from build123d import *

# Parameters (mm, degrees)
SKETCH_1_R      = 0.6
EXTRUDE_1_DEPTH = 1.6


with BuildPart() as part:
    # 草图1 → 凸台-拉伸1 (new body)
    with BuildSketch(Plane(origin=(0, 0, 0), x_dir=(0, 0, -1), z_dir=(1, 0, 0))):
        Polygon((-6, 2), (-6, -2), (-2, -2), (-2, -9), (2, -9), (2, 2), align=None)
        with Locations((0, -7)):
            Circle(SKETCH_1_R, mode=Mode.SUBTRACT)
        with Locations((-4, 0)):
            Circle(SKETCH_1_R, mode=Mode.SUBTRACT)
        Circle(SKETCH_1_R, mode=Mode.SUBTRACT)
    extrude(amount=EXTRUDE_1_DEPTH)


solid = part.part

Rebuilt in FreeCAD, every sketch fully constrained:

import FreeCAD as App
import Part
import Sketcher
from FreeCAD import Vector
Q = App.Units.Quantity


def add_polygon(sketch, points):
    """Adds a closed chain of lines whose ends are joined by coincident constraints."""
    first, n = sketch.GeometryCount, len(points)
    for a, b in zip(points, points[1:] + points[:1]):
        sketch.addGeometry(Part.LineSegment(App.Vector(*a, 0), App.Vector(*b, 0)), False)
    for i in range(n):
        sketch.addConstraint(Sketcher.Constraint("Coincident", first + i, 2, first + (i + 1) % n, 1))

doc = App.newDocument("Part")
body = doc.addObject("PartDesign::Body", "Body")

# Sketch on YZ plane
sketch1 = body.newObject("Sketcher::SketchObject", "Sketch")
sketch1.AttachmentSupport = (doc.getObject("YZ_Plane"), [""])
sketch1.MapMode = "FlatFace"
add_polygon(sketch1, [(2, 6), (-2, 6), (-2, 2), (-9, 2), (-9, -2), (2, -2)])  # lines 0-5
sketch1.addGeometry(Part.Circle(Vector(-7, 0, 0), Vector(0, 0, 1), 0.6), False)  # 6
sketch1.addGeometry(Part.Circle(Vector(0, 4, 0), Vector(0, 0, 1), 0.6), False)  # 7
sketch1.addGeometry(Part.Circle(Vector(0, 0, 0), Vector(0, 0, 1), 0.6), False)  # 8
sketch1.addConstraint([
    Sketcher.Constraint("Horizontal", 0),
    Sketcher.Constraint("Vertical", 1),
    Sketcher.Constraint("Horizontal", 2),
    Sketcher.Constraint("Vertical", 3),
    Sketcher.Constraint("Horizontal", 4),
    Sketcher.Constraint("Vertical", 5),
    Sketcher.Constraint("Coincident", 8, 3, -1, 1),
    Sketcher.Constraint("Equal", 6, 7),
    Sketcher.Constraint("Equal", 7, 8),
    Sketcher.Constraint("Symmetric", 1, 2, 4, 2, -1, 1),
    Sketcher.Constraint("PointOnObject", 6, 3, -1),
    Sketcher.Constraint("PointOnObject", 7, 3, -2),
    Sketcher.Constraint("Equal", 0, 1),
    Sketcher.Constraint("Equal", 1, 3),
    Sketcher.Constraint("Diameter", 6, Q("1.2 mm")),
    Sketcher.Constraint("DistanceX", 0, 2, 0, 1, Q("4 mm")),
    Sketcher.Constraint("DistanceX", 2, 2, 2, 1, Q("7 mm")),
    Sketcher.Constraint("DistanceX", 6, 3, -1, 1, Q("7 mm")),
    Sketcher.Constraint("DistanceY", -1, 1, 7, 3, Q("4 mm")),
])
pad1 = body.newObject("PartDesign::Pad", "Pad")
pad1.Profile = sketch1
pad1.Length = 1.6

doc.recompute()
